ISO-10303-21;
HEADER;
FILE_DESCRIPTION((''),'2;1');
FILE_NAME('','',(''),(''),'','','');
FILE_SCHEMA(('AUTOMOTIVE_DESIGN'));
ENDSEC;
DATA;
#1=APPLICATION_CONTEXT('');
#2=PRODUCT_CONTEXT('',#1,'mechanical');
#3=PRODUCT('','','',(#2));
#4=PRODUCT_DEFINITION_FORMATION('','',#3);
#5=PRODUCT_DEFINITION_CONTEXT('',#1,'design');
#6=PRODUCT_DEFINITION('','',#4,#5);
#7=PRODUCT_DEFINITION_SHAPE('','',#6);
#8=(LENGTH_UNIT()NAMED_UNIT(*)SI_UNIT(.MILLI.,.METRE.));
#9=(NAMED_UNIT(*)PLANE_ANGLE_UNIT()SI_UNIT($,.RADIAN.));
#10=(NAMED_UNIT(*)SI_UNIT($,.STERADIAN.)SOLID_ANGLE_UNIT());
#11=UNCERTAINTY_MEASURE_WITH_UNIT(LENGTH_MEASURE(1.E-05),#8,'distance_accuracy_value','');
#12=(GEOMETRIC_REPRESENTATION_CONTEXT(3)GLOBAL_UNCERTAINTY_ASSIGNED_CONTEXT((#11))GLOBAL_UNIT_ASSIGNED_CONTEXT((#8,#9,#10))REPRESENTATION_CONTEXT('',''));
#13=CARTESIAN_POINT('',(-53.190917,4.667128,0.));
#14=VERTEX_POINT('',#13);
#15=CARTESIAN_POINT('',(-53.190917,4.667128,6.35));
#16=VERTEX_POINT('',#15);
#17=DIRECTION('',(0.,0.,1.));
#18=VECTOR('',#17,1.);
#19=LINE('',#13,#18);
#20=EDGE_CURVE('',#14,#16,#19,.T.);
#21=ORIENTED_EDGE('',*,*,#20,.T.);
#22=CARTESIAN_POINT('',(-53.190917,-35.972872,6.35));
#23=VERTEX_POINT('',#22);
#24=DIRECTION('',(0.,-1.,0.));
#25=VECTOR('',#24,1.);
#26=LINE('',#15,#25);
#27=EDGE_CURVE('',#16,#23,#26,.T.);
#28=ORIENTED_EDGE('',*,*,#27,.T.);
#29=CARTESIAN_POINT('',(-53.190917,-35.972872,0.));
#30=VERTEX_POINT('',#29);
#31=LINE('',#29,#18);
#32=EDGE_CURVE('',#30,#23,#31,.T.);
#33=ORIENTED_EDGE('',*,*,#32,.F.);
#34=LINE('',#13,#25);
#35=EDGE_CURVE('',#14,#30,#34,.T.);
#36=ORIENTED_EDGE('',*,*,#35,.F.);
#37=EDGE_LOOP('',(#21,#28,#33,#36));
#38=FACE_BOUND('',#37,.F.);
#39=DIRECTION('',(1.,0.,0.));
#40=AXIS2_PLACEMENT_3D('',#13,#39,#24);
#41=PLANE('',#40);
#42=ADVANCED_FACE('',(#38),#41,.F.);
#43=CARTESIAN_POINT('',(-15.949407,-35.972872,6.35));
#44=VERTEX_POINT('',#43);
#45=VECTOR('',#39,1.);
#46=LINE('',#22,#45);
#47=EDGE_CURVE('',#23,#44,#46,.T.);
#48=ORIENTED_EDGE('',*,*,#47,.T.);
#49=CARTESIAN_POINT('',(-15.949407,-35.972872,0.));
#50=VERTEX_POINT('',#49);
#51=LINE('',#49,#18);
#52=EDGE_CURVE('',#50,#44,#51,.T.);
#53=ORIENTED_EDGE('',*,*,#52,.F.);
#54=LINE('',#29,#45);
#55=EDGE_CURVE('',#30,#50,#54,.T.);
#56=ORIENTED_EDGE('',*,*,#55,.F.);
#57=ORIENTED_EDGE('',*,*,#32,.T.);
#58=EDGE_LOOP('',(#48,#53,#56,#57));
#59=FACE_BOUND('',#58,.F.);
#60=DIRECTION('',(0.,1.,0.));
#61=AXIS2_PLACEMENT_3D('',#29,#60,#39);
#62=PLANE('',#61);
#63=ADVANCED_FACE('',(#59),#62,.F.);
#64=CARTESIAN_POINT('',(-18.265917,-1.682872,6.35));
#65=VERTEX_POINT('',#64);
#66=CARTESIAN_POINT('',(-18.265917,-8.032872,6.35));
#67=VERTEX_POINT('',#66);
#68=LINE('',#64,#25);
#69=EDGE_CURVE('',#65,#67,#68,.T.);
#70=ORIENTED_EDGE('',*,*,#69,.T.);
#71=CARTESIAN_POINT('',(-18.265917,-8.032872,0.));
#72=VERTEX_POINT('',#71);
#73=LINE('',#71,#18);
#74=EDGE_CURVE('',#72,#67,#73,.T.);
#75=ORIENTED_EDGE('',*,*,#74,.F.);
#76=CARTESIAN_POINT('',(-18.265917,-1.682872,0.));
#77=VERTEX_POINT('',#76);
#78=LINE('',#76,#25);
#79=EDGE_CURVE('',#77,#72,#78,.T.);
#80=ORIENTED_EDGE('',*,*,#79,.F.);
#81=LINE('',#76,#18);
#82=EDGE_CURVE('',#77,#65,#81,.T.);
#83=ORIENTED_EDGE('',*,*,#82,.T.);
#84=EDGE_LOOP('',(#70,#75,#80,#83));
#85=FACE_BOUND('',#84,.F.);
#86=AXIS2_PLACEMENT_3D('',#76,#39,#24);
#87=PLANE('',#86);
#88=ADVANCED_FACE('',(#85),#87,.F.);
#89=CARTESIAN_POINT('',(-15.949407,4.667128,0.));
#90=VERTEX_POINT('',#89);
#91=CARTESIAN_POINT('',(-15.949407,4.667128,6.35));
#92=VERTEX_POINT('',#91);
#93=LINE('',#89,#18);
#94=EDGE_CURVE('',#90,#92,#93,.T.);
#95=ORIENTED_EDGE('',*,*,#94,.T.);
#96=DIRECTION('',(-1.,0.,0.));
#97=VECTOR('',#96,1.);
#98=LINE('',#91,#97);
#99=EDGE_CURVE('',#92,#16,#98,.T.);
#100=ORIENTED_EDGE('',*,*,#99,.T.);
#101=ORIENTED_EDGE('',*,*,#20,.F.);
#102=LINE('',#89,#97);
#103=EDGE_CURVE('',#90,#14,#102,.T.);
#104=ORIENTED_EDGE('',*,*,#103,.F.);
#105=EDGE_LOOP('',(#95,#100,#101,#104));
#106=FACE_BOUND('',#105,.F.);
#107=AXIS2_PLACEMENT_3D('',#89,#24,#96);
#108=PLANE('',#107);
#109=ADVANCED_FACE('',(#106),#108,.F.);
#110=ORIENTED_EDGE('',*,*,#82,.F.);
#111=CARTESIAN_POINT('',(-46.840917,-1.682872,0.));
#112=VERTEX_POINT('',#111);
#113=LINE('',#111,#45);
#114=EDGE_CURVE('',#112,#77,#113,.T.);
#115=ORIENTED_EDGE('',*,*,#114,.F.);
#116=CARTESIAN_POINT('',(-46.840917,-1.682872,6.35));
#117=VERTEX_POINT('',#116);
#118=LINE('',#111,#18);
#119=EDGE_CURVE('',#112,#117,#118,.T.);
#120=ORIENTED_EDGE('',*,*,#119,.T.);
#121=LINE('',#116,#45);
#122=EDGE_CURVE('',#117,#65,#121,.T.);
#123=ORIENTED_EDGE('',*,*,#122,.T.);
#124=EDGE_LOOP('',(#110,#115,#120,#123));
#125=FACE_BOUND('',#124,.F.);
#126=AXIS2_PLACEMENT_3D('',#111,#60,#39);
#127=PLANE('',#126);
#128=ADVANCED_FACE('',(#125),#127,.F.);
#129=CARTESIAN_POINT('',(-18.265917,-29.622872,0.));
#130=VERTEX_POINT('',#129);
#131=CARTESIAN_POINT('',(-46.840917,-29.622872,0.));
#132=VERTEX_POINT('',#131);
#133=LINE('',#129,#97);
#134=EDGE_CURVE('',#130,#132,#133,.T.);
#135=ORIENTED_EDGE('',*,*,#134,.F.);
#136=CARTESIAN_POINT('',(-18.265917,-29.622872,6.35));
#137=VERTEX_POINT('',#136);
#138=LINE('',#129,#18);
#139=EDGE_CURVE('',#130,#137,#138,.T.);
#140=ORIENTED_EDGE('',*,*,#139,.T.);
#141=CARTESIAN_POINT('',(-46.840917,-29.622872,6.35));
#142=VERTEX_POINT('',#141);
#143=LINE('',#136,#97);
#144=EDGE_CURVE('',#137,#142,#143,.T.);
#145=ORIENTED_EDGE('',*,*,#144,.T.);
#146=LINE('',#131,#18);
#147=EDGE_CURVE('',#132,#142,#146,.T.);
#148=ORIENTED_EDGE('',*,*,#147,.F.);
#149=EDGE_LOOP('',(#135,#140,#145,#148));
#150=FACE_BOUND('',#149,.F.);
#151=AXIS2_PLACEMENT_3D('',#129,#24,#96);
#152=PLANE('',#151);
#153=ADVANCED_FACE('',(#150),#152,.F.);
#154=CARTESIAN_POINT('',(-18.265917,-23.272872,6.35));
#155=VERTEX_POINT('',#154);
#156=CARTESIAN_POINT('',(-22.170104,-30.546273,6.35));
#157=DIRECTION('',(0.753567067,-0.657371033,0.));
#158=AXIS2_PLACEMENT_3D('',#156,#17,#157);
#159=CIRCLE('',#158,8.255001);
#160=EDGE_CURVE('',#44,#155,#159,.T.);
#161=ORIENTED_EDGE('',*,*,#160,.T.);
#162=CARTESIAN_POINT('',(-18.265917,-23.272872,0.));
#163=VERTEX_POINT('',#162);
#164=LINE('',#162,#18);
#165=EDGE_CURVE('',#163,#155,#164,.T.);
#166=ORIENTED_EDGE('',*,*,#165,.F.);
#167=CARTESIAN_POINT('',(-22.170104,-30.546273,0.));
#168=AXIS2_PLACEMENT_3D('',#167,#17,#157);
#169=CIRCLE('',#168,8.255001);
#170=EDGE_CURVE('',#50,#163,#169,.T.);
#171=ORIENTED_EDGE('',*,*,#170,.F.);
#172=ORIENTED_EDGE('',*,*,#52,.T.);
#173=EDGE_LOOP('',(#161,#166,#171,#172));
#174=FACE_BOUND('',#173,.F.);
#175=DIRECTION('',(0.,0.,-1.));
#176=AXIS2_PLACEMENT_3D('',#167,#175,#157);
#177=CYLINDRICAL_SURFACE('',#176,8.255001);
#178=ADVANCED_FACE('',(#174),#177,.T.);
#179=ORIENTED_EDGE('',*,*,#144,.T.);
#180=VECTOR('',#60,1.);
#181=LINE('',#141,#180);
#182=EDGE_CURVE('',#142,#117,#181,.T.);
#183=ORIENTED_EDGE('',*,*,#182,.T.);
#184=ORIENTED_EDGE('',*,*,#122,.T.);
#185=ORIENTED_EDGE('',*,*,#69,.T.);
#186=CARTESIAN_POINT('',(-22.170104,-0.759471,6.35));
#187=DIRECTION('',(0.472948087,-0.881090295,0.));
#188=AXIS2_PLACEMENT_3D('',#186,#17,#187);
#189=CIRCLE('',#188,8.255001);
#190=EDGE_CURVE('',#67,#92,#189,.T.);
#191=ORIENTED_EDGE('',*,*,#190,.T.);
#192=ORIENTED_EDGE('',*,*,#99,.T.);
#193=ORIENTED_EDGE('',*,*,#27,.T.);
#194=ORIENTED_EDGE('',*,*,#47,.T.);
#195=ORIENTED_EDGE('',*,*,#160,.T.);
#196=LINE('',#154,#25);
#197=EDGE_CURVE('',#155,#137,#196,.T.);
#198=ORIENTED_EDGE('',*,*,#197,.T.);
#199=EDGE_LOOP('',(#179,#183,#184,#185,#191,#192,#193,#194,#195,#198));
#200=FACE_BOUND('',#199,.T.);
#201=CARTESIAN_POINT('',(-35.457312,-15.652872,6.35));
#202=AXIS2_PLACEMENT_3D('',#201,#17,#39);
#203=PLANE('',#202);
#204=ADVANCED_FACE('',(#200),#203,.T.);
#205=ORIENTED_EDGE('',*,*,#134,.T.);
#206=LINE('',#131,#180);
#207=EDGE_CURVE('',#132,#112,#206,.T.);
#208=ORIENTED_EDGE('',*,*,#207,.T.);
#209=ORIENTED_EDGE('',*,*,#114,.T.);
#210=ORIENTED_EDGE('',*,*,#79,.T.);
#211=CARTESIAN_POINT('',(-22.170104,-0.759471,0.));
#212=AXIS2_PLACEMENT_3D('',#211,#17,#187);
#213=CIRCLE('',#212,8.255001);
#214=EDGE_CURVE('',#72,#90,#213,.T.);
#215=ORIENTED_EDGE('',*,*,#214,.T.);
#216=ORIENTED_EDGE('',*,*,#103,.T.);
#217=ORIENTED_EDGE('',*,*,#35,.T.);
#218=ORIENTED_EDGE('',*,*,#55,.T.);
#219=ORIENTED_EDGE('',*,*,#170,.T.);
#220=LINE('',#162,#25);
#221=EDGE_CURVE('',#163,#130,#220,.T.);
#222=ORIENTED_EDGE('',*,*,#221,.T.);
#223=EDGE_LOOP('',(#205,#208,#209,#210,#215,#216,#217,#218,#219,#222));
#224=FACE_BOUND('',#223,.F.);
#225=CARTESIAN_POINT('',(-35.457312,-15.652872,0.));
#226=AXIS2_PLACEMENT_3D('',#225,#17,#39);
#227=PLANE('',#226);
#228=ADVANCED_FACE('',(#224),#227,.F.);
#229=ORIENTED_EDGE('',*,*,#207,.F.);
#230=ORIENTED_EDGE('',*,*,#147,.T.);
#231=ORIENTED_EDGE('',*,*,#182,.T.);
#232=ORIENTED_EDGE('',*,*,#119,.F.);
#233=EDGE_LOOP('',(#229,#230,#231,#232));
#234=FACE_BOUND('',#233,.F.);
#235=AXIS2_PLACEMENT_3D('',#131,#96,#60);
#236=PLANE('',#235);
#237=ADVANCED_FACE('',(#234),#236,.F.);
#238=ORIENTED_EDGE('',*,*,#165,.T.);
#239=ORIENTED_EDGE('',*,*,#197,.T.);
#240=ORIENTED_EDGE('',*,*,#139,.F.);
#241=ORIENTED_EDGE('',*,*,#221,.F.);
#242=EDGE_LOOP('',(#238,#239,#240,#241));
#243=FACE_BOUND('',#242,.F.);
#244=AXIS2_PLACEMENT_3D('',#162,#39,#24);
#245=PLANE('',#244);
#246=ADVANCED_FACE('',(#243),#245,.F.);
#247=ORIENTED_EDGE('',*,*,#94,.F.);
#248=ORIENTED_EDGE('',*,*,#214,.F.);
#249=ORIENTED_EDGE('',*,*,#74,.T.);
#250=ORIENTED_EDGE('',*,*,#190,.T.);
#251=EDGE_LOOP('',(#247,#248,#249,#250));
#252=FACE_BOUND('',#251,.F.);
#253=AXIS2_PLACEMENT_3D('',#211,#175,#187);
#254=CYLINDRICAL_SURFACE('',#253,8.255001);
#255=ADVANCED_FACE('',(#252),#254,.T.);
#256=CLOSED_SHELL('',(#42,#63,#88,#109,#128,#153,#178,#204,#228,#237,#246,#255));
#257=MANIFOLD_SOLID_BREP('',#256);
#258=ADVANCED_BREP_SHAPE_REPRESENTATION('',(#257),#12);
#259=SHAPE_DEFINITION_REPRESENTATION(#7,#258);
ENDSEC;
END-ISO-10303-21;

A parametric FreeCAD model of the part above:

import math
import FreeCAD as App
import Part
import Sketcher
Q = App.Units.Quantity

doc = App.newDocument("Part")
params = doc.addObject("Spreadsheet::Sheet", "Params")
for row, (alias, value) in enumerate([
    ("sketch1_height", "1.1 in"),
    ("sketch1_height2", "1.6 in"),
    ("sketch1_radius", "0.325 in"),
    ("sketch1_height3", "0.25 in"),
    ("sketch1_width", "1.125 in"),
    ("pad1_length", "0.25 in"),
], start=1):
    params.set(f"A{row}", alias)
    params.set(f"B{row}", "=" + value)
    params.setAlias(f"B{row}", alias)

body = doc.addObject("PartDesign::Body", "Body")

# Sketch on XY plane
sketch1 = body.newObject("Sketcher::SketchObject", "Sketch")
sketch1.AttachmentSupport = (doc.getObject("XY_Plane"), [""])
sketch1.MapMode = "FlatFace"
sketch1.addGeometry([
    Part.LineSegment(App.Vector(-18, -23, 0), App.Vector(-18, -30, 0)),  # 0
    Part.LineSegment(App.Vector(-18, -30, 0), App.Vector(-47, -30, 0)),  # 1
    Part.LineSegment(App.Vector(-47, -30, 0), App.Vector(-47, -2, 0)),  # 2
    Part.LineSegment(App.Vector(-47, -2, 0), App.Vector(-18, -2, 0)),  # 3
    Part.LineSegment(App.Vector(-18, -2, 0), App.Vector(-18, -8, 0)),  # 4
    Part.ArcOfCircle(Part.Circle(App.Vector(-22, -1, 0), App.Vector(0, 0, 1), 8), math.radians(-62), math.radians(41)),  # 5
    Part.LineSegment(App.Vector(-16, 5, 0), App.Vector(-53, 5, 0)),  # 6
    Part.LineSegment(App.Vector(-53, 5, 0), App.Vector(-53, -36, 0)),  # 7
    Part.LineSegment(App.Vector(-53, -36, 0), App.Vector(-16, -36, 0)),  # 8
    Part.ArcOfCircle(Part.Circle(App.Vector(-22, -31, 0), App.Vector(0, 0, 1), 8), math.radians(-41), math.radians(62)),  # 9
], False)
sketch1.addConstraint([
    Sketcher.Constraint("Coincident", 0, 2, 1, 1),
    Sketcher.Constraint("Coincident", 1, 2, 2, 1),
    Sketcher.Constraint("Coincident", 2, 2, 3, 1),
    Sketcher.Constraint("Coincident", 3, 2, 4, 1),
    Sketcher.Constraint("Coincident", 4, 2, 5, 1),
    Sketcher.Constraint("Coincident", 5, 2, 6, 1),
    Sketcher.Constraint("Coincident", 6, 2, 7, 1),
    Sketcher.Constraint("Coincident", 7, 2, 8, 1),
    Sketcher.Constraint("Coincident", 8, 2, 9, 1),
    Sketcher.Constraint("Coincident", 9, 2, 0, 1),
    Sketcher.Constraint("Vertical", 0),
    Sketcher.Constraint("Horizontal", 1),
    Sketcher.Constraint("Vertical", 2),
    Sketcher.Constraint("Horizontal", 3),
    Sketcher.Constraint("Vertical", 4),
    Sketcher.Constraint("Horizontal", 6),
    Sketcher.Constraint("Vertical", 7),
    Sketcher.Constraint("Horizontal", 8),
    Sketcher.Constraint("Equal", 5, 9),
    Sketcher.Constraint("Vertical", 5, 3, 9, 3),
    Sketcher.Constraint("Vertical", 0, 2, 3, 2),
    Sketcher.Constraint("Vertical", 5, 2, 8, 2),
    Sketcher.Constraint("Equal", 0, 4),
    Sketcher.Constraint("DistanceY", 2, 1, 2, 2, Q("1.1 in")),
    Sketcher.Constraint("DistanceY", 7, 2, 7, 1, Q("1.6 in")),
    Sketcher.Constraint("Radius", 5, Q("0.325 in")),
    Sketcher.Constraint("DistanceY", 0, 2, 0, 1, Q("0.25 in")),
    Sketcher.Constraint("DistanceX", 1, 2, 1, 1, Q("1.125 in")),
    Sketcher.Constraint("DistanceX", 6, 2, 2, 2, Q("0.25 in")),
    Sketcher.Constraint("DistanceX", 6, 2, 6, 1, 37.24151),
    Sketcher.Constraint("DistanceY", 5, 3, -1, 1, 0.759471),
    Sketcher.Constraint("DistanceX", 5, 3, -1, 1, 22.170104),
])
sketch1.setExpression("Constraints[23]", "Params.sketch1_height")
sketch1.setExpression("Constraints[24]", "Params.sketch1_height2")
sketch1.setExpression("Constraints[25]", "Params.sketch1_radius")
sketch1.setExpression("Constraints[26]", "Params.sketch1_height3")
sketch1.setExpression("Constraints[27]", "Params.sketch1_width")
pad1 = body.newObject("PartDesign::Pad", "Pad")
pad1.Profile = sketch1
pad1.setExpression("Length", "Params.pad1_length")

doc.recompute()
